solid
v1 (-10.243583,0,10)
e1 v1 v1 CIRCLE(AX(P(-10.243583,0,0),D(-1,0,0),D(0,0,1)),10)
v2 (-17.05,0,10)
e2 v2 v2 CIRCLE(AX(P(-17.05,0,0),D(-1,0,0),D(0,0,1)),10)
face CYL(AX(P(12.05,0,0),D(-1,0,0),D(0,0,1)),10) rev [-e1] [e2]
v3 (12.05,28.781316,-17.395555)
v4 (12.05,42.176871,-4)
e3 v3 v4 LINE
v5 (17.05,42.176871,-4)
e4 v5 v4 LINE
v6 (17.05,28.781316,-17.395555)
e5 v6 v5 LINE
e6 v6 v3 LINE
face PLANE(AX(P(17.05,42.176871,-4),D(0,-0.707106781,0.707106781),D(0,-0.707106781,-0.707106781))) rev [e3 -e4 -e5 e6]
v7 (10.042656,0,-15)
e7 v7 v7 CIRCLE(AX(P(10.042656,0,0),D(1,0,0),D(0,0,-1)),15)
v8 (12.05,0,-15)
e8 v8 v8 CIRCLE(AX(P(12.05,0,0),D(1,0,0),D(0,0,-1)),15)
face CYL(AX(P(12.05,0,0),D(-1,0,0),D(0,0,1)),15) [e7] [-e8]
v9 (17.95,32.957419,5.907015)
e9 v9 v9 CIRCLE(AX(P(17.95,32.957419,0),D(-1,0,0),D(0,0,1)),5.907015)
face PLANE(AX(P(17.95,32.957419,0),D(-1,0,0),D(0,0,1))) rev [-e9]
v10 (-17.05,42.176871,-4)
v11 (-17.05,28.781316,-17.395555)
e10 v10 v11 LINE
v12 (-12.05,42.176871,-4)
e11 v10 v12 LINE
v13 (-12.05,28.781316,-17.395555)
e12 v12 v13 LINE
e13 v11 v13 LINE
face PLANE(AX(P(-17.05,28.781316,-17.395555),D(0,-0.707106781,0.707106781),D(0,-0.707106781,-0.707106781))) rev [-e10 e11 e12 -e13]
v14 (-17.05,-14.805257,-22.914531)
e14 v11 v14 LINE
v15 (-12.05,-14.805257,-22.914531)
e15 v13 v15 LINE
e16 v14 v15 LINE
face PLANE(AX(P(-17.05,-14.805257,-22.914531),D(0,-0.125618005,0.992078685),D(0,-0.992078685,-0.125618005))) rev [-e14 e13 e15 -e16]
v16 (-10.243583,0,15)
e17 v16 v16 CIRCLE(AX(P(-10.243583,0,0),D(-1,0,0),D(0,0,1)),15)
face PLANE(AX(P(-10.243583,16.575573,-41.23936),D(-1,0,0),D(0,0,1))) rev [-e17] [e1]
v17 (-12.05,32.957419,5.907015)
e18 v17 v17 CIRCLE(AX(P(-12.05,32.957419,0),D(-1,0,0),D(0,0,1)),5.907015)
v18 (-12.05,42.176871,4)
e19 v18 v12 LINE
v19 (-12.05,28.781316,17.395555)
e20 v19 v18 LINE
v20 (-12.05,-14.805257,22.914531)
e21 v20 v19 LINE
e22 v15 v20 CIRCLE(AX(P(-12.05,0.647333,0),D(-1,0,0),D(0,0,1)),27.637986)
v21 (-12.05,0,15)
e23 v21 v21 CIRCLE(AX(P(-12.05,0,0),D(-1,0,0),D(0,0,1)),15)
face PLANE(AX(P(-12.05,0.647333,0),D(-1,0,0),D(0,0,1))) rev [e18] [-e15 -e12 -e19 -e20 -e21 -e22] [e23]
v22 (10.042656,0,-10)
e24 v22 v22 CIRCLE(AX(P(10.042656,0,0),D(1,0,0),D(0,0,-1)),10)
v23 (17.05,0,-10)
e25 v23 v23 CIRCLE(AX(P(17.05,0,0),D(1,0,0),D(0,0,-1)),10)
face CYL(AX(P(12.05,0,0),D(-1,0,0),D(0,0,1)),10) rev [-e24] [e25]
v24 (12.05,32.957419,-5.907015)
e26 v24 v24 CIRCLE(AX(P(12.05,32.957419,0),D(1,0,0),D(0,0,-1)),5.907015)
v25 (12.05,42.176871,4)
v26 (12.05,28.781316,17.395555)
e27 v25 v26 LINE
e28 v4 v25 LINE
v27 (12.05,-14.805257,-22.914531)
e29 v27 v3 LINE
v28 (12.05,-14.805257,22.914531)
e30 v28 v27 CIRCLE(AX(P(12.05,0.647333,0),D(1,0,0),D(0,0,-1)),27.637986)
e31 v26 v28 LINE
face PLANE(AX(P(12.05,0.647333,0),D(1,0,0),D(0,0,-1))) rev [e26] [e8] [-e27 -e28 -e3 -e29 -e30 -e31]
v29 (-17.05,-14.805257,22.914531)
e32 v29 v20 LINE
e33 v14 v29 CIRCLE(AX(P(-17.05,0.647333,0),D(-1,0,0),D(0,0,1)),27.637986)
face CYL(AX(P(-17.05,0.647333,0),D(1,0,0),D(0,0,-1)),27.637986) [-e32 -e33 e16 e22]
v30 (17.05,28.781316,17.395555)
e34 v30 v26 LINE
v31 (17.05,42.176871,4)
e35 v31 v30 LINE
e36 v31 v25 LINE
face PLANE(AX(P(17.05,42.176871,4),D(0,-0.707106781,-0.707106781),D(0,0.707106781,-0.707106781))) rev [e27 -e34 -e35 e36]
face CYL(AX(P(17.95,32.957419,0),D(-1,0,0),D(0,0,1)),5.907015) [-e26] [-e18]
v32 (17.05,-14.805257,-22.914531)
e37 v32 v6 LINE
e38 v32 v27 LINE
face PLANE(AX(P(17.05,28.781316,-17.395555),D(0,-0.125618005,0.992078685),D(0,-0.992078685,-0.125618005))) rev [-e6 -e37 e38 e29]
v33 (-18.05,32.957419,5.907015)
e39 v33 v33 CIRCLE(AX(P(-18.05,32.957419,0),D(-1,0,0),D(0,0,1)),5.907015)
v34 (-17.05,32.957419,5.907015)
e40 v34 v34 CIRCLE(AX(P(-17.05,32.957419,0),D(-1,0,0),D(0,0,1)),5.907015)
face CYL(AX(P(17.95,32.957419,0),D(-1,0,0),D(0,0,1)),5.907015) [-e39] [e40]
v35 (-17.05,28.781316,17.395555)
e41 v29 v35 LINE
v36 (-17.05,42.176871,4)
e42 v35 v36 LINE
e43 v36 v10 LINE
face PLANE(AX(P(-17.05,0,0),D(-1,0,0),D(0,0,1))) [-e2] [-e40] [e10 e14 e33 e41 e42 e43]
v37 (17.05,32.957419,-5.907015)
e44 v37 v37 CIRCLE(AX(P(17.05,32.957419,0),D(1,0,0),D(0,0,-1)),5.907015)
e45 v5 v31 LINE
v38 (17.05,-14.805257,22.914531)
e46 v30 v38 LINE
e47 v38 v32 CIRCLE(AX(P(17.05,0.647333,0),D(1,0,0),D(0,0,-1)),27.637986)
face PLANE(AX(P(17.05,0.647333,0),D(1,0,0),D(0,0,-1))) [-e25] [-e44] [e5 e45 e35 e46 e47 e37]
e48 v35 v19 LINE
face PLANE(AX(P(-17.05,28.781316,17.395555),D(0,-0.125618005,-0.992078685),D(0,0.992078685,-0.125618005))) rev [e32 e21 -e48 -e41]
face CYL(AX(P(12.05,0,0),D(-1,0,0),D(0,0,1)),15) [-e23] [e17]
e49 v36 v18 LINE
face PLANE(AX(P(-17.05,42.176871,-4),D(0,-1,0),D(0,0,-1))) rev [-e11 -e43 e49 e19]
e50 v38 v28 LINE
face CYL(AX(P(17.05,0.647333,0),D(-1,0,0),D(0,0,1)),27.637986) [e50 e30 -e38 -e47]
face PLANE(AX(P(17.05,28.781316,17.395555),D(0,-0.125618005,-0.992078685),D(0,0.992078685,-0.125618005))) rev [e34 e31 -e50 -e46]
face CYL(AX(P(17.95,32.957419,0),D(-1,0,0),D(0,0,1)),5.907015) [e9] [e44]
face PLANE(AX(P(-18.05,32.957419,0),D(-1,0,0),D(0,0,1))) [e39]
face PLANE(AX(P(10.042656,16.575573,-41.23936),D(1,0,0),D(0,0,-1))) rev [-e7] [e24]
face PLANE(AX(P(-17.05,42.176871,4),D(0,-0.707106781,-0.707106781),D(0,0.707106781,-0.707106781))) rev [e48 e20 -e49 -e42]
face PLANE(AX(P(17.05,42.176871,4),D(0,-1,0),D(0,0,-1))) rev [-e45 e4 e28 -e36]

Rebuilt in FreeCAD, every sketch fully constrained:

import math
import FreeCAD as App
import Part
import Sketcher
from FreeCAD import Vector
Q = App.Units.Quantity

doc = App.newDocument("Part")
params = doc.addObject("Spreadsheet::Sheet", "Params")
for row, (alias, value) in enumerate([
    ("sketch1_diameter", "30 mm"),
    ("sketch1_diameter2", "20 mm"),
    ("pad1_length", "24.1 mm"),
    ("sketch2_diameter", "20 mm"),
    ("sketch2_height", "8 mm"),
    ("pad2_length", "5 mm"),
    ("sketch3_diameter", "30 mm"),
    ("sketch3_height", "8 mm"),
    ("pad3_length", "5 mm"),
    ("sketch4_diameter", "30 mm"),
    ("sketch4_diameter2", "20 mm"),
    ("pad4_length", "5 mm"),
    ("pad5_length", "1 mm"),
    ("pad5_length2", "35 mm"),
    ("pocket1_length", "110 mm"),
], start=1):
    params.set(f"A{row}", alias)
    params.set(f"B{row}", "=" + value)
    params.setAlias(f"B{row}", alias)

body = doc.addObject("PartDesign::Body", "Body")

# Sketch on YZ plane
sketch1 = body.newObject("Sketcher::SketchObject", "Sketch")
sketch1.AttachmentSupport = (doc.getObject("YZ_Plane"), [""])
sketch1.MapMode = "FlatFace"
sketch1.addGeometry([
    Part.Circle(Vector(0, 0, 0), Vector(0, 0, 1), 15),
    Part.Circle(Vector(0, 0, 0), Vector(0, 0, 1), 10),
], False)
sketch1.addConstraint([
    Sketcher.Constraint("Coincident", 0, 3, -1, 1),
    Sketcher.Constraint("Coincident", 1, 3, -1, 1),
    Sketcher.Constraint("Diameter", 0, Q("30 mm")),
    Sketcher.Constraint("Diameter", 1, Q("20 mm")),
])
sketch1.setExpression("Constraints[2]", "Params.sketch1_diameter")
sketch1.setExpression("Constraints[3]", "Params.sketch1_diameter2")
pad1 = body.newObject("PartDesign::Pad", "Pad")
pad1.Profile = sketch1
pad1.setExpression("Length", "Params.pad1_length")
pad1.Midplane = True

# Sketch on YZ plane
sketch2 = body.newObject("Sketcher::SketchObject", "Sketch001")
sketch2.AttachmentSupport = (doc.getObject("YZ_Plane"), [""])
sketch2.MapMode = "FlatFace"
sketch2.AttachmentOffset = App.Placement(Vector(0, 0, 12.05), App.Rotation())
sketch2.addGeometry([
    Part.LineSegment(Vector(42.176871, -4, 0), Vector(42.176871, 4, 0)),  # 0
    Part.LineSegment(Vector(42.176871, 4, 0), Vector(28.781316, 17.395555, 0)),  # 1
    Part.LineSegment(Vector(28.781316, 17.395555, 0), Vector(-14.805257, 22.914531, 0)),  # 2
    Part.ArcOfCircle(Part.Circle(Vector(0.647333, 0, 0), Vector(0, 0, 1), 27.637986), math.radians(123.994059), math.radians(236.005941)),  # 3
    Part.LineSegment(Vector(-14.805257, -22.914531, 0), Vector(28.781316, -17.395555, 0)),  # 4
    Part.LineSegment(Vector(28.781316, -17.395555, 0), Vector(42.176871, -4, 0)),  # 5
    Part.Circle(Vector(0, 0, 0), Vector(0, 0, 1), 10),  # 6
], False)
sketch2.addConstraint([
    Sketcher.Constraint("Coincident", 0, 2, 1, 1),
    Sketcher.Constraint("Coincident", 1, 2, 2, 1),
    Sketcher.Constraint("Coincident", 2, 2, 3, 1),
    Sketcher.Constraint("Coincident", 3, 2, 4, 1),
    Sketcher.Constraint("Coincident", 4, 2, 5, 1),
    Sketcher.Constraint("Coincident", 5, 2, 0, 1),
    Sketcher.Constraint("Vertical", 0),
    Sketcher.Constraint("Coincident", 6, 3, -1, 1),
    Sketcher.Constraint("Symmetric", 2, 2, 3, 2, -1),
    Sketcher.Constraint("Symmetric", 1, 2, 4, 2, -1),
    Sketcher.Constraint("Perpendicular", 1, 5),
    Sketcher.Constraint("Equal", 1, 5),
    Sketcher.Constraint("Diameter", 6, Q("20 mm")),
    Sketcher.Constraint("DistanceY", 0, 1, 0, 2, Q("8 mm")),
    Sketcher.Constraint("Radius", 3, Q("27.637986 mm")),
    Sketcher.Constraint("DistanceX", -1, 1, 0, 2, Q("42.176871 mm")),
    Sketcher.Constraint("DistanceY", -1, 1, 2, 2, Q("22.914531 mm")),
    Sketcher.Constraint("DistanceX", 3, 3, 0, 2, Q("41.529538 mm")),
    Sketcher.Constraint("DistanceY", 4, 2, 1, 2, Q("34.79111 mm")),
])
sketch2.setExpression("Constraints[12]", "Params.sketch2_diameter")
sketch2.setExpression("Constraints[13]", "Params.sketch2_height")
pad2 = body.newObject("PartDesign::Pad", "Pad001")
pad2.Profile = sketch2
pad2.setExpression("Length", "Params.pad2_length")
body2 = doc.addObject("PartDesign::Body", "Body001")

# Sketch on YZ plane
sketch3 = body2.newObject("Sketcher::SketchObject", "Sketch002")
sketch3.AttachmentSupport = (doc.getObject("YZ_Plane001"), [""])
sketch3.MapMode = "FlatFace"
sketch3.AttachmentOffset = App.Placement(Vector(0, 0, -12.05), App.Rotation())
sketch3.addGeometry([
    Part.LineSegment(Vector(42.176871, 4, 0), Vector(42.176871, -4, 0)),  # 0
    Part.LineSegment(Vector(42.176871, -4, 0), Vector(28.781316, -17.395555, 0)),  # 1
    Part.LineSegment(Vector(28.781316, -17.395555, 0), Vector(-14.805257, -22.914531, 0)),  # 2
    Part.ArcOfCircle(Part.Circle(Vector(0.647333, 0, 0), Vector(0, 0, 1), 27.637986), math.radians(123.994059), math.radians(236.005941)),  # 3
    Part.LineSegment(Vector(-14.805257, 22.914531, 0), Vector(28.781316, 17.395555, 0)),  # 4
    Part.LineSegment(Vector(28.781316, 17.395555, 0), Vector(42.176871, 4, 0)),  # 5
    Part.Circle(Vector(0, 0, 0), Vector(0, 0, 1), 15),  # 6
], False)
sketch3.addConstraint([
    Sketcher.Constraint("Coincident", 0, 2, 1, 1),
    Sketcher.Constraint("Coincident", 1, 2, 2, 1),
    Sketcher.Constraint("Coincident", 2, 2, 3, 2),
    Sketcher.Constraint("Coincident", 3, 1, 4, 1),
    Sketcher.Constraint("Coincident", 4, 2, 5, 1),
    Sketcher.Constraint("Coincident", 5, 2, 0, 1),
    Sketcher.Constraint("Vertical", 0),
    Sketcher.Constraint("Coincident", 6, 3, -1, 1),
    Sketcher.Constraint("Symmetric", 2, 2, 3, 1, -1),
    Sketcher.Constraint("Symmetric", 1, 2, 4, 2, -1),
    Sketcher.Constraint("Perpendicular", 1, 5),
    Sketcher.Constraint("Equal", 1, 5),
    Sketcher.Constraint("Diameter", 6, Q("30 mm")),
    Sketcher.Constraint("DistanceY", 0, 2, 0, 1, Q("8 mm")),
    Sketcher.Constraint("Radius", 3, Q("27.637986 mm")),
    Sketcher.Constraint("DistanceX", -1, 1, 0, 2, Q("42.176871 mm")),
    Sketcher.Constraint("DistanceY", 2, 2, -1, 1, Q("22.914531 mm")),
    Sketcher.Constraint("DistanceX", 3, 3, 0, 2, Q("41.529538 mm")),
    Sketcher.Constraint("DistanceY", 1, 2, 4, 2, Q("34.79111 mm")),
])
sketch3.setExpression("Constraints[12]", "Params.sketch3_diameter")
sketch3.setExpression("Constraints[13]", "Params.sketch3_height")
pad3 = body2.newObject("PartDesign::Pad", "Pad002")
pad3.Profile = sketch3
pad3.setExpression("Length", "Params.pad3_length")
pad3.Reversed = True
body.AllowCompound = True
doc.recompute()

boolean = body.newObject("PartDesign::Boolean", "Boolean")
boolean.Type = "Fuse"
boolean.addObjects([body2])

# Sketch on YZ plane
sketch4 = body.newObject("Sketcher::SketchObject", "Sketch003")
sketch4.AttachmentSupport = (doc.getObject("YZ_Plane"), [""])
sketch4.MapMode = "FlatFace"
sketch4.AttachmentOffset = App.Placement(Vector(0, 0, -12.05), App.Rotation())
sketch4.addGeometry([
    Part.Circle(Vector(0, 0, 0), Vector(0, 0, 1), 15),
    Part.Circle(Vector(0, 0, 0), Vector(0, 0, 1), 10),
], False)
sketch4.addConstraint([
    Sketcher.Constraint("Coincident", 0, 3, -1, 1),
    Sketcher.Constraint("Coincident", 1, 3, -1, 1),
    Sketcher.Constraint("Diameter", 0, Q("30 mm")),
    Sketcher.Constraint("Diameter", 1, Q("20 mm")),
])
sketch4.setExpression("Constraints[2]", "Params.sketch4_diameter")
sketch4.setExpression("Constraints[3]", "Params.sketch4_diameter2")
pad4 = body.newObject("PartDesign::Pad", "Pad003")
pad4.Profile = sketch4
pad4.setExpression("Length", "Params.pad4_length")
pad4.Reversed = True

# Sketch on YZ plane
sketch5 = body.newObject("Sketcher::SketchObject", "Sketch004")
sketch5.AttachmentSupport = (doc.getObject("YZ_Plane"), [""])
sketch5.MapMode = "FlatFace"
sketch5.AttachmentOffset = App.Placement(Vector(0, 0, -17.05), App.Rotation())
sketch5.addGeometry(Part.Circle(Vector(32.957419, 0, 0), Vector(0, 0, 1), 5.907015), False)
sketch5.addConstraint([
    Sketcher.Constraint("PointOnObject", 0, 3, -1),
    Sketcher.Constraint("Diameter", 0, Q("11.81403 mm")),
    Sketcher.Constraint("DistanceX", -1, 1, 0, 3, Q("32.957419 mm")),
])
pad5 = body.newObject("PartDesign::Pad", "Pad004")
pad5.Profile = sketch5
pad5.Type = "TwoLengths"
pad5.setExpression("Length", "Params.pad5_length")
pad5.setExpression("Length2", "Params.pad5_length2")
pad5.Reversed = True

# Sketch on XY plane
sketch6 = body.newObject("Sketcher::SketchObject", "Sketch005")
sketch6.AttachmentSupport = (doc.getObject("XY_Plane"), [""])
sketch6.MapMode = "FlatFace"
sketch6.AttachmentOffset = App.Placement(Vector(0, 0, 68.76064), App.Rotation())
sketch6.addGeometry([
    Part.LineSegment(Vector(-10.243583, 16.575573, 0), Vector(-10.243583, -24.198758, 0)),
    Part.LineSegment(Vector(-10.243583, -24.198758, 0), Vector(10.042656, -24.198758, 0)),
    Part.LineSegment(Vector(10.042656, -24.198758, 0), Vector(10.042656, 16.575573, 0)),
    Part.LineSegment(Vector(10.042656, 16.575573, 0), Vector(-10.243583, 16.575573, 0)),
], False)
sketch6.addConstraint([
    Sketcher.Constraint("Coincident", 0, 2, 1, 1),
    Sketcher.Constraint("Coincident", 1, 2, 2, 1),
    Sketcher.Constraint("Coincident", 2, 2, 3, 1),
    Sketcher.Constraint("Coincident", 3, 2, 0, 1),
    Sketcher.Constraint("Vertical", 0),
    Sketcher.Constraint("Horizontal", 1),
    Sketcher.Constraint("Vertical", 2),
    Sketcher.Constraint("Horizontal", 3),
    Sketcher.Constraint("DistanceX", 1, 1, 1, 2, Q("20.286239 mm")),
    Sketcher.Constraint("DistanceY", 0, 2, 0, 1, Q("40.77433 mm")),
    Sketcher.Constraint("DistanceX", 0, 2, -1, 1, Q("10.243583 mm")),
    Sketcher.Constraint("DistanceY", 0, 2, -1, 1, Q("24.198758 mm")),
])
pocket1 = body.newObject("PartDesign::Pocket", "Pocket")
pocket1.Profile = sketch6
pocket1.setExpression("Length", "Params.pocket1_length")

doc.recompute()
